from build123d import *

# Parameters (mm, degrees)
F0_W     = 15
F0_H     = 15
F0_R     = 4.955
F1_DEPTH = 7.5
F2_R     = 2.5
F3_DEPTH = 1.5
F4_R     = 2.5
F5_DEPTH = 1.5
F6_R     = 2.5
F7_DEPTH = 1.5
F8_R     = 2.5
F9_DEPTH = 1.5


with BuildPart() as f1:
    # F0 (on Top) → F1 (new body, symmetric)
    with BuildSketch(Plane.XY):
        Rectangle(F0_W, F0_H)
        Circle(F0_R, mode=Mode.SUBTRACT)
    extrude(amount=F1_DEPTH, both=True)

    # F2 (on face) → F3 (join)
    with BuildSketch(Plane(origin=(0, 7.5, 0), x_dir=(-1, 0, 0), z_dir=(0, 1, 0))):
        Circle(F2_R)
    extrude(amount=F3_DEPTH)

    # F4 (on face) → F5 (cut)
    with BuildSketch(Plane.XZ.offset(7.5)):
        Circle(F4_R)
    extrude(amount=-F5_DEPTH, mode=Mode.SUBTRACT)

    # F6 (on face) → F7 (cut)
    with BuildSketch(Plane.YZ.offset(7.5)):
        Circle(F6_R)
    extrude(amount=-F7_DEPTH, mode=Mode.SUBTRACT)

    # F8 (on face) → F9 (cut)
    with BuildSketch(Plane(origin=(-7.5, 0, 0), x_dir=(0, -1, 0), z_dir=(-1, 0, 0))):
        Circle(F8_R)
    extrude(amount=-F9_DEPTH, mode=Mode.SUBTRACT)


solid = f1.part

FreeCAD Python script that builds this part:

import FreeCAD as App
import Part
import Sketcher
from FreeCAD import Vector

doc = App.newDocument("Part")
body = doc.addObject("PartDesign::Body", "Body")

# Sketch on XY plane
sketch1 = doc.addObject("Sketcher::SketchObject", "Sketch")
body.addObject(sketch1)
sketch1.AttachmentSupport = (doc.XY_Plane, [""])
sketch1.MapMode = "FlatFace"
sketch1.addGeometry([
    Part.LineSegment(Vector(-7.5, 7.5, 0), Vector(-7.5, -7.5, 0)),  # 0
    Part.LineSegment(Vector(-7.5, -7.5, 0), Vector(7.5, -7.5, 0)),  # 1
    Part.LineSegment(Vector(7.5, -7.5, 0), Vector(7.5, 7.5, 0)),  # 2
    Part.LineSegment(Vector(7.5, 7.5, 0), Vector(-7.5, 7.5, 0)),  # 3
    Part.Circle(Vector(0, 0, 0), Vector(0, 0, 1), 4.955),  # 4
], False)
sketch1.addConstraint([
    Sketcher.Constraint("Coincident", 0, 2, 1, 1),
    Sketcher.Constraint("Coincident", 1, 2, 2, 1),
    Sketcher.Constraint("Coincident", 2, 2, 3, 1),
    Sketcher.Constraint("Coincident", 3, 2, 0, 1),
    Sketcher.Constraint("Vertical", 0),
    Sketcher.Constraint("Horizontal", 1),
    Sketcher.Constraint("Vertical", 2),
    Sketcher.Constraint("Horizontal", 3),
    Sketcher.Constraint("Coincident", 4, 3, -1, 1),
    Sketcher.Constraint("Symmetric", 0, 2, 2, 2, -1, 1),
    Sketcher.Constraint("Equal", 3, 0),
    Sketcher.Constraint("Diameter", 4, 9.91),
    Sketcher.Constraint("DistanceX", 1, 1, 1, 2, 15.0),
])
pad1 = doc.addObject("PartDesign::Pad", "Pad")
body.addObject(pad1)
pad1.Profile = sketch1
pad1.Length = 15
pad1.Midplane = True

# Sketch on XZ plane
sketch2 = doc.addObject("Sketcher::SketchObject", "Sketch001")
body.addObject(sketch2)
sketch2.AttachmentSupport = (doc.XZ_Plane, [""])
sketch2.MapMode = "FlatFace"
sketch2.AttachmentOffset = App.Placement(Vector(0, 0, -7.5), App.Rotation())
sketch2.addGeometry(Part.Circle(Vector(0, 0, 0), Vector(0, 0, 1), 2.5), False)
sketch2.addConstraint([
    Sketcher.Constraint("Coincident", 0, 3, -1, 1),
    Sketcher.Constraint("Diameter", 0, 5.0),
])
pad2 = doc.addObject("PartDesign::Pad", "Pad001")
body.addObject(pad2)
pad2.Profile = sketch2
pad2.Length = 1.5
pad2.Reversed = True

# Sketch on XZ plane
sketch3 = doc.addObject("Sketcher::SketchObject", "Sketch002")
body.addObject(sketch3)
sketch3.AttachmentSupport = (doc.XZ_Plane, [""])
sketch3.MapMode = "FlatFace"
sketch3.AttachmentOffset = App.Placement(Vector(0, 0, 7.5), App.Rotation())
sketch3.addGeometry(Part.Circle(Vector(0, 0, 0), Vector(0, 0, 1), 2.5), False)
sketch3.addConstraint([
    Sketcher.Constraint("Coincident", 0, 3, -1, 1),
    Sketcher.Constraint("Diameter", 0, 5.0),
])
pocket1 = doc.addObject("PartDesign::Pocket", "Pocket")
body.addObject(pocket1)
pocket1.Profile = sketch3
pocket1.Length = 1.5

# Sketch on YZ plane
sketch4 = doc.addObject("Sketcher::SketchObject", "Sketch003")
body.addObject(sketch4)
sketch4.AttachmentSupport = (doc.YZ_Plane, [""])
sketch4.MapMode = "FlatFace"
sketch4.AttachmentOffset = App.Placement(Vector(0, 0, 7.5), App.Rotation())
sketch4.addGeometry(Part.Circle(Vector(0, 0, 0), Vector(0, 0, 1), 2.5), False)
sketch4.addConstraint([
    Sketcher.Constraint("Coincident", 0, 3, -1, 1),
    Sketcher.Constraint("Diameter", 0, 5.0),
])
pocket2 = doc.addObject("PartDesign::Pocket", "Pocket001")
body.addObject(pocket2)
pocket2.Profile = sketch4
pocket2.Length = 1.5

# Sketch on YZ plane
sketch5 = doc.addObject("Sketcher::SketchObject", "Sketch004")
body.addObject(sketch5)
sketch5.AttachmentSupport = (doc.YZ_Plane, [""])
sketch5.MapMode = "FlatFace"
sketch5.AttachmentOffset = App.Placement(Vector(0, 0, -7.5), App.Rotation())
sketch5.addGeometry(Part.Circle(Vector(0, 0, 0), Vector(0, 0, 1), 2.5), False)
sketch5.addConstraint([
    Sketcher.Constraint("Coincident", 0, 3, -1, 1),
    Sketcher.Constraint("Diameter", 0, 5.0),
])
pocket3 = doc.addObject("PartDesign::Pocket", "Pocket002")
body.addObject(pocket3)
pocket3.Profile = sketch5
pocket3.Length = 1.5
pocket3.Reversed = True

doc.recompute()
